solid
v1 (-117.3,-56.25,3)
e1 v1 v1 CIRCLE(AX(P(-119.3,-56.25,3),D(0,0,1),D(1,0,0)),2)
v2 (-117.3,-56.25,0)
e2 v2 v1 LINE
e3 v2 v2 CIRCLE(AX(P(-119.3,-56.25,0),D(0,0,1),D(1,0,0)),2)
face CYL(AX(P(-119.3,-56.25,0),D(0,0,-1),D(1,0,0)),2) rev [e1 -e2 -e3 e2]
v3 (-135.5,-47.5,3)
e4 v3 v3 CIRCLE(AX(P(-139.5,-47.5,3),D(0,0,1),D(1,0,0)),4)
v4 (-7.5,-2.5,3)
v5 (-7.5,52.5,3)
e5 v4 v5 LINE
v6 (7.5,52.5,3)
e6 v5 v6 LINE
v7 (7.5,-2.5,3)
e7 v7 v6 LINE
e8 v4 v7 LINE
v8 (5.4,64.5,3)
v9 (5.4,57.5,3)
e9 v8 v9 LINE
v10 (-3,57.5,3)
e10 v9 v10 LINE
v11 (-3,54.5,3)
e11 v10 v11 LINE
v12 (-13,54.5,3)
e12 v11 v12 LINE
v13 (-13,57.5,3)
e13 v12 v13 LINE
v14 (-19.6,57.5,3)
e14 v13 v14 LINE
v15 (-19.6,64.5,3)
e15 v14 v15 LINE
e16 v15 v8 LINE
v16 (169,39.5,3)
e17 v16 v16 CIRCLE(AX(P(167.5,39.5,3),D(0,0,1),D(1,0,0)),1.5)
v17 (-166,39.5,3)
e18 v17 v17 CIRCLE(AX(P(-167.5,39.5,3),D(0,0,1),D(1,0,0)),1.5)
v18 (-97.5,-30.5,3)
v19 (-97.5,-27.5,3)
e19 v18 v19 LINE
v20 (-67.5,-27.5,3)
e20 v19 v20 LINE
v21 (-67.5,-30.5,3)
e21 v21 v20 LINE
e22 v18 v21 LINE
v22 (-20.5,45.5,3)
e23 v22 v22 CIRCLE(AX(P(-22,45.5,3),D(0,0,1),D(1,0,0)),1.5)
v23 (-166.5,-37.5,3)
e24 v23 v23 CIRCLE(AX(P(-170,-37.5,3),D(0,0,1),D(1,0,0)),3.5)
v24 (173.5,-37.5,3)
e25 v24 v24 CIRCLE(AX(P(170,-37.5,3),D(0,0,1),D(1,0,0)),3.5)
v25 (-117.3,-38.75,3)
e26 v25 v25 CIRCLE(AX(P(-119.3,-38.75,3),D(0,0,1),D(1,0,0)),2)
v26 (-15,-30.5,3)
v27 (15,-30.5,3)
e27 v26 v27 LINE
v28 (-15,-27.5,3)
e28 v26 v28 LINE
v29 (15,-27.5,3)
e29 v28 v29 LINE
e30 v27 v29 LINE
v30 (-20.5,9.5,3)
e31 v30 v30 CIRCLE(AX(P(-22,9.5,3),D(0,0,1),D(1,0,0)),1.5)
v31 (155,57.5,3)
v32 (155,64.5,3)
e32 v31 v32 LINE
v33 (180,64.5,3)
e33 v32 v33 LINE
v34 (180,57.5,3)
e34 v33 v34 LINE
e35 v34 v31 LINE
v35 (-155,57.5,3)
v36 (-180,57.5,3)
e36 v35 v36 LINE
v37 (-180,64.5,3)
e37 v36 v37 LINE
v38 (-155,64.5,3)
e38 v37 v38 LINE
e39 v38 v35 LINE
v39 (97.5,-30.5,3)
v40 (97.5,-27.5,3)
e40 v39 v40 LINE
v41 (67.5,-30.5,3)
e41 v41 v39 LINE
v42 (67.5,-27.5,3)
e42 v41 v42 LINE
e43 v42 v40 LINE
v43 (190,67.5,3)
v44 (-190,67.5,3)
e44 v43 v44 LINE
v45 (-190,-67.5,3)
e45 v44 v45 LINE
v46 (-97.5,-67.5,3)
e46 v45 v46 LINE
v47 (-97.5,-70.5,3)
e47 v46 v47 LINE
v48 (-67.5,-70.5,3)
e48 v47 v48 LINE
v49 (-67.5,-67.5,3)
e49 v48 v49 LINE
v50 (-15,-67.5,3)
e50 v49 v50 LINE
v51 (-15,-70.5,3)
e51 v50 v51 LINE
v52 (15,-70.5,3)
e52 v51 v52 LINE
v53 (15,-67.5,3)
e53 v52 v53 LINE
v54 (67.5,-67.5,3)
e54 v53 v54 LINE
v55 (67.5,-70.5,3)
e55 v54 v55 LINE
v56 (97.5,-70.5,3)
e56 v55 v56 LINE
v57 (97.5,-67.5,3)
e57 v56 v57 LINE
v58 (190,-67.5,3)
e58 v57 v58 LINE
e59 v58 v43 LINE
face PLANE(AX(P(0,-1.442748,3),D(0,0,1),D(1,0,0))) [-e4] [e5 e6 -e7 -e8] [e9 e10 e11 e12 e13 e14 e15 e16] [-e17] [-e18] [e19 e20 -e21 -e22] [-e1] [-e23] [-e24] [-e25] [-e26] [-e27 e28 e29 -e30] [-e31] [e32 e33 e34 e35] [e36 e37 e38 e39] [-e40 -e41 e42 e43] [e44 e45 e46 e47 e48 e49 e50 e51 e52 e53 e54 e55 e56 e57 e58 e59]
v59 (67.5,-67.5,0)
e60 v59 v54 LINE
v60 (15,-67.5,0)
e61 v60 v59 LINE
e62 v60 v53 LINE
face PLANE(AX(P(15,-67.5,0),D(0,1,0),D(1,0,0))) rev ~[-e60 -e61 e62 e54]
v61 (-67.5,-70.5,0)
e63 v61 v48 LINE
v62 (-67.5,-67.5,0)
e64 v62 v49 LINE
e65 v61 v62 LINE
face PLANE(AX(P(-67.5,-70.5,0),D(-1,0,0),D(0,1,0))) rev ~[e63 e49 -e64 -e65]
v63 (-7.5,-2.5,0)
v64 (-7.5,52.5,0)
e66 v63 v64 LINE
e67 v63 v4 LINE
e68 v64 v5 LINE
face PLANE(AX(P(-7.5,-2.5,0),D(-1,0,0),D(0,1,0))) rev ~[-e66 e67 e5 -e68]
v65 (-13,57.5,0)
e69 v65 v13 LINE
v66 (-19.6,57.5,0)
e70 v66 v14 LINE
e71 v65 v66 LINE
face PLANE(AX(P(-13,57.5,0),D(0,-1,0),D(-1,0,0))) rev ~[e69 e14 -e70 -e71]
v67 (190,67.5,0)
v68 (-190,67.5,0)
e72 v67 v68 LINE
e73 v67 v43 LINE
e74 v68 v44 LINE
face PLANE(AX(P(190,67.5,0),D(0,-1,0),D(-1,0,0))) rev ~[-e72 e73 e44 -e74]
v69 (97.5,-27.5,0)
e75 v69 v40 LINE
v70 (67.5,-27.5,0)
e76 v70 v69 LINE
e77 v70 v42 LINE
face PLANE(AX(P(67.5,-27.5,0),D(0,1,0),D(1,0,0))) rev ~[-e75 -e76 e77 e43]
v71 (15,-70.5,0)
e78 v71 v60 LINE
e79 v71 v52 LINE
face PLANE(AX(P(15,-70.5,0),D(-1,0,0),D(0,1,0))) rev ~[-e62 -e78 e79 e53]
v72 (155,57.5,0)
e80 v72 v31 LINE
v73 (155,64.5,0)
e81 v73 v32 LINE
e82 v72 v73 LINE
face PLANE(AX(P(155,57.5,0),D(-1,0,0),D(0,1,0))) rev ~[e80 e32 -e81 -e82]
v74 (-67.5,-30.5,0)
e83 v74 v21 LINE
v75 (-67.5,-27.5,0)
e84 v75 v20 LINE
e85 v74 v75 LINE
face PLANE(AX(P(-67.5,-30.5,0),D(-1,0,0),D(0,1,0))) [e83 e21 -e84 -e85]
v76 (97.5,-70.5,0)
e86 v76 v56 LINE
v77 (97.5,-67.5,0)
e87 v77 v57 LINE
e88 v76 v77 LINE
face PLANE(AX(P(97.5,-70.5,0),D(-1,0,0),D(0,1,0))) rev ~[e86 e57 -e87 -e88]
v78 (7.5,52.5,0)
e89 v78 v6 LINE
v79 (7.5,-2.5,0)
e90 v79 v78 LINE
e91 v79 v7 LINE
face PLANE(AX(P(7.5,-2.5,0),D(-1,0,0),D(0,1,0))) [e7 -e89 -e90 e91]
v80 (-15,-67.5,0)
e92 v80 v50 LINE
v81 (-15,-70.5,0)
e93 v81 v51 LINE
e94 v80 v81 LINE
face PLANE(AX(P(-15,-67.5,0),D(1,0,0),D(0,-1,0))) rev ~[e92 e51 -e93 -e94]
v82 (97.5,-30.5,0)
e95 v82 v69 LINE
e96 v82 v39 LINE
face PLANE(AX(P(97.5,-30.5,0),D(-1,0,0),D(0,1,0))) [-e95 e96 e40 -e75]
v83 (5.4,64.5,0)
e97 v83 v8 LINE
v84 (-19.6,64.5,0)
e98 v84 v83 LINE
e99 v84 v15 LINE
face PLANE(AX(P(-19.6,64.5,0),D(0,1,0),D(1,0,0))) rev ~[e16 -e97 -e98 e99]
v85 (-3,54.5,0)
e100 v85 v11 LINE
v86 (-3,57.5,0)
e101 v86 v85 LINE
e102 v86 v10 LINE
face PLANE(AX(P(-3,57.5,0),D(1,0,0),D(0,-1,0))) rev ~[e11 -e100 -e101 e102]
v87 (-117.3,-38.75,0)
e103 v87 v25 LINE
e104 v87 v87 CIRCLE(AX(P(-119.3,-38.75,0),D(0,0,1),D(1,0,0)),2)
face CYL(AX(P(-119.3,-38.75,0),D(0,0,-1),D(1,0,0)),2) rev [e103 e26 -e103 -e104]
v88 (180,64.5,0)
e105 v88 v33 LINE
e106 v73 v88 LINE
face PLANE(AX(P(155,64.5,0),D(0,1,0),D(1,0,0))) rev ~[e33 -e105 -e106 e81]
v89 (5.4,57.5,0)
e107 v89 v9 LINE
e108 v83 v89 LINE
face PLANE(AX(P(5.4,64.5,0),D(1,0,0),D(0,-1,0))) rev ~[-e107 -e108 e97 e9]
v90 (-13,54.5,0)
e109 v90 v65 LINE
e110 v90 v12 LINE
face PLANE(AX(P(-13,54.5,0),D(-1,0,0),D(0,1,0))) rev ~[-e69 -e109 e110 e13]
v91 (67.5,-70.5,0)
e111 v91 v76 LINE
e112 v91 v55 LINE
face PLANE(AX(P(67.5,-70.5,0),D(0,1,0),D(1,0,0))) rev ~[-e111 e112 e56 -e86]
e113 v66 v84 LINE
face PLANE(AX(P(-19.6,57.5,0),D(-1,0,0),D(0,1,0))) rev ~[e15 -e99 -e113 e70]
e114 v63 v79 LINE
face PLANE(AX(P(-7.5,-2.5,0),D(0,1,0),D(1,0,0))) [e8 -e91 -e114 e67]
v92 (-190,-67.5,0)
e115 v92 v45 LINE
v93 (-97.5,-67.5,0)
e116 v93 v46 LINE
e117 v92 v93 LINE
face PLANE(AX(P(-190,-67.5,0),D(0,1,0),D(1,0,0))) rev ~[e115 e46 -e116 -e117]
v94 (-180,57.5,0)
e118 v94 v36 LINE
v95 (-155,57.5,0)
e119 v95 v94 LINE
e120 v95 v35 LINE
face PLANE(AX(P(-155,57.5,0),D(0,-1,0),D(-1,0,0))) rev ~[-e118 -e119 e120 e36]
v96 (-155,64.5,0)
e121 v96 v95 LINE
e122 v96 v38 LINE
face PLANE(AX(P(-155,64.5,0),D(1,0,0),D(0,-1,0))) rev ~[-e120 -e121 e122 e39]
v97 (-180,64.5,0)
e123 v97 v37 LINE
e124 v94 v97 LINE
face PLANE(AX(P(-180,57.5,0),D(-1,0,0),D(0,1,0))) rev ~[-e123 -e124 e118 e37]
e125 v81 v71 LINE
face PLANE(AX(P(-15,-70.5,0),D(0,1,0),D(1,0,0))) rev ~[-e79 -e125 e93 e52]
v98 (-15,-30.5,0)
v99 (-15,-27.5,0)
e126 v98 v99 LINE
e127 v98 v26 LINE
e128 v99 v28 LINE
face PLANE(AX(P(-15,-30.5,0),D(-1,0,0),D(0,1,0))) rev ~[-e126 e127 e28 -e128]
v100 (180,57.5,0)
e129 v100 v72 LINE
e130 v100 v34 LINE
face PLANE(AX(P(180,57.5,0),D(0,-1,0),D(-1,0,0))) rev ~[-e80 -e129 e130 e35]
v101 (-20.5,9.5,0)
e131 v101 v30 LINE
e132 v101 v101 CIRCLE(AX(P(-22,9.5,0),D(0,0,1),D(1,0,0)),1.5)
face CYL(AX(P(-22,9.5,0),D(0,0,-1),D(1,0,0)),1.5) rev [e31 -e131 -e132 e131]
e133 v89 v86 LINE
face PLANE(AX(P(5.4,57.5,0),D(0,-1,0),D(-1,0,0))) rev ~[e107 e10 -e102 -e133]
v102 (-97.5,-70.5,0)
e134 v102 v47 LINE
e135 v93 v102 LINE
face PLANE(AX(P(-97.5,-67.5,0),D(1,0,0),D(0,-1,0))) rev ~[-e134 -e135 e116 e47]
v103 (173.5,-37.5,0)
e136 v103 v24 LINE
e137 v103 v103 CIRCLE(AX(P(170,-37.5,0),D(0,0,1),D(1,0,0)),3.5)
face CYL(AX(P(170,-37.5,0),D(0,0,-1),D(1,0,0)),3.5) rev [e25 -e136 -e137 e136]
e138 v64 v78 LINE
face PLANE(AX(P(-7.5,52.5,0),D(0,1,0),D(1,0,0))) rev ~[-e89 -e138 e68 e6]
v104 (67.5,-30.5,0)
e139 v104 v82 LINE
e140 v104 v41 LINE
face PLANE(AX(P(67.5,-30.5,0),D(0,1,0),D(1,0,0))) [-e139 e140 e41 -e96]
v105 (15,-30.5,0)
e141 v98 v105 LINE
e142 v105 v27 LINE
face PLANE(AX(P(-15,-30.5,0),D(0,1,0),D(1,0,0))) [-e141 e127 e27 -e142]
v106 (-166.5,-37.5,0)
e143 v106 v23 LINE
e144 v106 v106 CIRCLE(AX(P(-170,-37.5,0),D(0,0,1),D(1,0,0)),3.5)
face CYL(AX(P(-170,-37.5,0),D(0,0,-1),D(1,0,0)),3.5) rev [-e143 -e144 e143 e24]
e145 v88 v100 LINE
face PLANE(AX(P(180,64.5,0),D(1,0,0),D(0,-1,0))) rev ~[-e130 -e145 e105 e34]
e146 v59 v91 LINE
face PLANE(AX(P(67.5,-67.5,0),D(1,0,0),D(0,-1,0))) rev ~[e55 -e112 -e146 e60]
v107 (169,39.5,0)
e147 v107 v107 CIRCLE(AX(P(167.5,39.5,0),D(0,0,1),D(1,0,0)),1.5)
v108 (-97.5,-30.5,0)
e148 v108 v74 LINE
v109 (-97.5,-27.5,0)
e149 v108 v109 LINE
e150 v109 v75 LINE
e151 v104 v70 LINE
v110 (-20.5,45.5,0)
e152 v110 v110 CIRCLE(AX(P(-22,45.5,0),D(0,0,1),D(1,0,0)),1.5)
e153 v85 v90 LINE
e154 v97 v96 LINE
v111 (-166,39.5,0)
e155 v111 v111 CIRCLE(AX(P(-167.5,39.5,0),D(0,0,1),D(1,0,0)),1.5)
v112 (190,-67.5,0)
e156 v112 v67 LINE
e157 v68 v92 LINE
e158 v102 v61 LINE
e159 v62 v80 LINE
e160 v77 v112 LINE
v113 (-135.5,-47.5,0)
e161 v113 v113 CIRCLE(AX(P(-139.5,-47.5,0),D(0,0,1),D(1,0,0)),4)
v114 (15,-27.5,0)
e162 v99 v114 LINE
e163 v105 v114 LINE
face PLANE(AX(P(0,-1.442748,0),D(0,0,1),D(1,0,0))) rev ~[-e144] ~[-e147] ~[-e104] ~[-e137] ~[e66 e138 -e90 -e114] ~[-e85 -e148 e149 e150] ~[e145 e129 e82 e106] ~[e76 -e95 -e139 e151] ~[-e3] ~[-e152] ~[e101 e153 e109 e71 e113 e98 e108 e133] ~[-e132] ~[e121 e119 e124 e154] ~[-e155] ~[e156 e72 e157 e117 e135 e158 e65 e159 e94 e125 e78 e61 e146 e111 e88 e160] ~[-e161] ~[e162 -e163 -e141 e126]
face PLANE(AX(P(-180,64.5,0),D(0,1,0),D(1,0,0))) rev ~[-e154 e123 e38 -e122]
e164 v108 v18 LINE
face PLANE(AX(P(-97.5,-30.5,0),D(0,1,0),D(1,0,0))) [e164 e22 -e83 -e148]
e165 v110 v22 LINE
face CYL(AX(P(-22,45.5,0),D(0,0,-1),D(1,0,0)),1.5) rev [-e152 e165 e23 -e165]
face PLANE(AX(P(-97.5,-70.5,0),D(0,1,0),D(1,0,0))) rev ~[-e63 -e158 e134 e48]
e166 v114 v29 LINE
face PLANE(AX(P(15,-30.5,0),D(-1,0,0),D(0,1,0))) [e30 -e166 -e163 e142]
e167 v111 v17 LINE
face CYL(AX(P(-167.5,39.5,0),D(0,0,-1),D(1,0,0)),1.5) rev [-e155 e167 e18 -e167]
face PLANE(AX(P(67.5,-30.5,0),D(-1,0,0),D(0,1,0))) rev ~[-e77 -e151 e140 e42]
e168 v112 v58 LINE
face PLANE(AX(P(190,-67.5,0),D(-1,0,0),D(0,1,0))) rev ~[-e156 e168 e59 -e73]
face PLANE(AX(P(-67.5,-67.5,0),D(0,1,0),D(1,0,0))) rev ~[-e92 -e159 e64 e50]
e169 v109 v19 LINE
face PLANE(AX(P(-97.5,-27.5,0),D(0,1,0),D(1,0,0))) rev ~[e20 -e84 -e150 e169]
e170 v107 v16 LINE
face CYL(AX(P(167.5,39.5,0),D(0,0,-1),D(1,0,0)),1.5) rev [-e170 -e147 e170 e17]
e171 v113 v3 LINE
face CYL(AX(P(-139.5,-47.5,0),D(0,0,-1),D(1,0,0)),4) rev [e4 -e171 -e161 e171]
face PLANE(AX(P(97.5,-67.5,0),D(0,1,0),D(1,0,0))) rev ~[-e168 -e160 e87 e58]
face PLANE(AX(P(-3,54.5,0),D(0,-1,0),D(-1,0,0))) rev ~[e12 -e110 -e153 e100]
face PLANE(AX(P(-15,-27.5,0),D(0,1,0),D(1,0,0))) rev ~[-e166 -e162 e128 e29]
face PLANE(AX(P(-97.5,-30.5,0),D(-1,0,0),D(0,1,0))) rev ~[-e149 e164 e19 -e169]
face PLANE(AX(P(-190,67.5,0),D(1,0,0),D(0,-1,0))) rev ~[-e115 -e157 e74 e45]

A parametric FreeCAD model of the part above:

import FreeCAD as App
import Part
import Sketcher


def add_polygon(sketch, points):
    """Adds a closed chain of lines whose ends are joined by coincident constraints."""
    first, n = sketch.GeometryCount, len(points)
    for a, b in zip(points, points[1:] + points[:1]):
        sketch.addGeometry(Part.LineSegment(App.Vector(*a, 0), App.Vector(*b, 0)), False)
    for i in range(n):
        sketch.addConstraint(Sketcher.Constraint("Coincident", first + i, 2, first + (i + 1) % n, 1))

doc = App.newDocument("Part")
body = doc.addObject("PartDesign::Body", "Body")

sketch1 = body.newObject("Sketcher::SketchObject", "Sketch")
sketch1.AttachmentSupport = (doc.getObject("XY_Plane"), [""])
sketch1.MapMode = "FlatFace"
add_polygon(sketch1, [(-190, 67.5), (-190, -67.5), (-97.5, -67.5), (-97.5, -70.5), (-67.5, -70.5), (-67.5, -67.5), (-15, -67.5), (-15, -70.5), (15, -70.5), (15, -67.5), (67.5, -67.5), (67.5, -70.5), (97.5, -70.5), (97.5, -67.5), (190, -67.5), (190, 67.5)])
sketch1.addGeometry(Part.Circle(App.Vector(-139.5, -47.5, 0), App.Vector(0, 0, 1), 4), False)
sketch1.addGeometry(Part.Circle(App.Vector(-119.3, -56.2, 0), App.Vector(0, 0, 1), 2), False)
sketch1.addGeometry(Part.Circle(App.Vector(-170, -37.5, 0), App.Vector(0, 0, 1), 3.5), False)
sketch1.addGeometry(Part.Circle(App.Vector(-119.3, -38.8, 0), App.Vector(0, 0, 1), 2), False)
add_polygon(sketch1, [(-67.5, -30.5), (-97.5, -30.5), (-97.5, -27.5), (-67.5, -27.5)])
add_polygon(sketch1, [(15, -30.5), (-15, -30.5), (-15, -27.5), (15, -27.5)])
add_polygon(sketch1, [(97.5, -30.5), (67.5, -30.5), (67.5, -27.5), (97.5, -27.5)])
sketch1.addGeometry(Part.Circle(App.Vector(170, -37.5, 0), App.Vector(0, 0, 1), 3.5), False)
sketch1.addGeometry(Part.Circle(App.Vector(-22, 9.5, 0), App.Vector(0, 0, 1), 1.5), False)
sketch1.addGeometry(Part.Circle(App.Vector(-167.5, 39.5, 0), App.Vector(0, 0, 1), 1.5), False)
add_polygon(sketch1, [(-155, 57.5), (-180, 57.5), (-180, 64.5), (-155, 64.5)])
sketch1.addGeometry(Part.Circle(App.Vector(-22, 45.5, 0), App.Vector(0, 0, 1), 1.5), False)
add_polygon(sketch1, [(-13, 57.5), (-19.6, 57.5), (-19.6, 64.5), (5.4, 64.5), (5.4, 57.5), (-3, 57.5), (-3, 54.5), (-13, 54.5)])
add_polygon(sketch1, [(7.5, -2.5), (-7.5, -2.5), (-7.5, 52.5), (7.5, 52.5)])
sketch1.addGeometry(Part.Circle(App.Vector(167.5, 39.5, 0), App.Vector(0, 0, 1), 1.5), False)
add_polygon(sketch1, [(180, 57.5), (155, 57.5), (155, 64.5), (180, 64.5)])
sketch1.addConstraint(Sketcher.Constraint("Vertical", 0))
sketch1.addConstraint(Sketcher.Constraint("Horizontal", 1))
sketch1.addConstraint(Sketcher.Constraint("Vertical", 2))
sketch1.addConstraint(Sketcher.Constraint("Horizontal", 3))
sketch1.addConstraint(Sketcher.Constraint("Vertical", 4))
sketch1.addConstraint(Sketcher.Constraint("Horizontal", 5))
sketch1.addConstraint(Sketcher.Constraint("Vertical", 6))
sketch1.addConstraint(Sketcher.Constraint("Horizontal", 7))
sketch1.addConstraint(Sketcher.Constraint("Vertical", 8))
sketch1.addConstraint(Sketcher.Constraint("Horizontal", 9))
sketch1.addConstraint(Sketcher.Constraint("Vertical", 10))
sketch1.addConstraint(Sketcher.Constraint("Horizontal", 11))
sketch1.addConstraint(Sketcher.Constraint("Vertical", 12))
sketch1.addConstraint(Sketcher.Constraint("Horizontal", 13))
sketch1.addConstraint(Sketcher.Constraint("Vertical", 14))
sketch1.addConstraint(Sketcher.Constraint("Horizontal", 15))
sketch1.addConstraint(Sketcher.Constraint("Horizontal", 20))
sketch1.addConstraint(Sketcher.Constraint("Vertical", 21))
sketch1.addConstraint(Sketcher.Constraint("Horizontal", 22))
sketch1.addConstraint(Sketcher.Constraint("Vertical", 23))
sketch1.addConstraint(Sketcher.Constraint("Horizontal", 24))
sketch1.addConstraint(Sketcher.Constraint("Vertical", 25))
sketch1.addConstraint(Sketcher.Constraint("Horizontal", 26))
sketch1.addConstraint(Sketcher.Constraint("Vertical", 27))
sketch1.addConstraint(Sketcher.Constraint("Horizontal", 28))
sketch1.addConstraint(Sketcher.Constraint("Vertical", 29))
sketch1.addConstraint(Sketcher.Constraint("Horizontal", 30))
sketch1.addConstraint(Sketcher.Constraint("Vertical", 31))
sketch1.addConstraint(Sketcher.Constraint("Horizontal", 35))
sketch1.addConstraint(Sketcher.Constraint("Vertical", 36))
sketch1.addConstraint(Sketcher.Constraint("Horizontal", 37))
sketch1.addConstraint(Sketcher.Constraint("Vertical", 38))
sketch1.addConstraint(Sketcher.Constraint("Horizontal", 40))
sketch1.addConstraint(Sketcher.Constraint("Vertical", 41))
sketch1.addConstraint(Sketcher.Constraint("Horizontal", 42))
sketch1.addConstraint(Sketcher.Constraint("Vertical", 43))
sketch1.addConstraint(Sketcher.Constraint("Horizontal", 44))
sketch1.addConstraint(Sketcher.Constraint("Vertical", 45))
sketch1.addConstraint(Sketcher.Constraint("Horizontal", 46))
sketch1.addConstraint(Sketcher.Constraint("Vertical", 47))
sketch1.addConstraint(Sketcher.Constraint("Horizontal", 48))
sketch1.addConstraint(Sketcher.Constraint("Vertical", 49))
sketch1.addConstraint(Sketcher.Constraint("Horizontal", 50))
sketch1.addConstraint(Sketcher.Constraint("Vertical", 51))
sketch1.addConstraint(Sketcher.Constraint("Horizontal", 53))
sketch1.addConstraint(Sketcher.Constraint("Vertical", 54))
sketch1.addConstraint(Sketcher.Constraint("Horizontal", 55))
sketch1.addConstraint(Sketcher.Constraint("Vertical", 56))
sketch1.addConstraint(Sketcher.Constraint("Equal", 17, 19))
sketch1.addConstraint(Sketcher.Constraint("Equal", 18, 32))
sketch1.addConstraint(Sketcher.Constraint("Equal", 33, 34))
sketch1.addConstraint(Sketcher.Constraint("Equal", 34, 39))
sketch1.addConstraint(Sketcher.Constraint("Equal", 39, 52))
sketch1.addConstraint(Sketcher.Constraint("Symmetric", 0, 2, 14, 2, -1, 1))
sketch1.addConstraint(Sketcher.Constraint("Symmetric", 18, 3, 32, 3, -2))
sketch1.addConstraint(Sketcher.Constraint("Symmetric", 34, 3, 52, 3, -2))
sketch1.addConstraint(Sketcher.Constraint("Symmetric", 5, 2, 8, 2, -2))
sketch1.addConstraint(Sketcher.Constraint("Symmetric", 3, 2, 10, 2, -2))
sketch1.addConstraint(Sketcher.Constraint("Symmetric", 1, 2, 12, 2, -2))
sketch1.addConstraint(Sketcher.Constraint("Symmetric", 23, 2, 28, 2, -2))
sketch1.addConstraint(Sketcher.Constraint("Symmetric", 21, 2, 30, 2, -2))
sketch1.addConstraint(Sketcher.Constraint("Symmetric", 38, 2, 53, 2, -2))
sketch1.addConstraint(Sketcher.Constraint("Symmetric", 36, 2, 55, 2, -2))
sketch1.addConstraint(Sketcher.Constraint("Horizontal", 1, 2, 4, 2))
sketch1.addConstraint(Sketcher.Constraint("Horizontal", 3, 2, 6, 2))
sketch1.addConstraint(Sketcher.Constraint("Horizontal", 23, 2, 24, 2))
sketch1.addConstraint(Sketcher.Constraint("Horizontal", 22, 2, 25, 2))
sketch1.addConstraint(Sketcher.Constraint("Horizontal", 38, 2, 40, 2))
sketch1.addConstraint(Sketcher.Constraint("Horizontal", 37, 2, 41, 2))
sketch1.addConstraint(Sketcher.Constraint("Horizontal", 40, 2, 43, 2))
sketch1.addConstraint(Sketcher.Constraint("Vertical", 17, 3, 19, 3))
sketch1.addConstraint(Sketcher.Constraint("Vertical", 33, 3, 39, 3))
sketch1.addConstraint(Sketcher.Constraint("Vertical", 2, 2, 20, 2))
sketch1.addConstraint(Sketcher.Constraint("Vertical", 4, 2, 22, 2))
sketch1.addConstraint(Sketcher.Constraint("Vertical", 6, 2, 24, 2))
sketch1.addConstraint(Sketcher.Constraint("Vertical", 8, 2, 26, 2))
sketch1.addConstraint(Sketcher.Constraint("Equal", 3, 7))
sketch1.addConstraint(Sketcher.Constraint("Equal", 37, 42))
sketch1.addConstraint(Sketcher.Constraint("Equal", 12, 21))
sketch1.addConstraint(Sketcher.Constraint("Equal", 31, 45))
sketch1.addConstraint(Sketcher.Constraint("Diameter", 16, 8.0))
sketch1.addConstraint(Sketcher.Constraint("Diameter", 17, 4.0))
sketch1.addConstraint(Sketcher.Constraint("Diameter", 18, 7.0))
sketch1.addConstraint(Sketcher.Constraint("Diameter", 33, 3.0))
sketch1.addConstraint(Sketcher.Constraint("DistanceX", 3, 1, 3, 2, 30.0))
sketch1.addConstraint(Sketcher.Constraint("DistanceX", 15, 2, 15, 1, 380.0))
sketch1.addConstraint(Sketcher.Constraint("DistanceX", 35, 2, 35, 1, 25.0))
sketch1.addConstraint(Sketcher.Constraint("DistanceX", 46, 2, 46, 1, 10.0))
sketch1.addConstraint(Sketcher.Constraint("DistanceX", 48, 2, 48, 1, 15.0))
sketch1.addConstraint(Sketcher.Constraint("DistanceY", 0, 2, 0, 1, 135.0))
sketch1.addConstraint(Sketcher.Constraint("DistanceY", 2, 2, 2, 1, 3.0))
sketch1.addConstraint(Sketcher.Constraint("DistanceY", 36, 1, 36, 2, 7.0))
sketch1.addConstraint(Sketcher.Constraint("DistanceY", 49, 1, 49, 2, 55.0))
sketch1.addConstraint(Sketcher.Constraint("DistanceX", 1, 1, 1, 2, 92.5))
sketch1.addConstraint(Sketcher.Constraint("DistanceX", 40, 2, 40, 1, 6.6))
sketch1.addConstraint(Sketcher.Constraint("DistanceX", 18, 3, -1, 1, 170.0))
sketch1.addConstraint(Sketcher.Constraint("DistanceX", 33, 3, -1, 1, 22.0))
sketch1.addConstraint(Sketcher.Constraint("DistanceX", 35, 2, -1, 1, 180.0))
sketch1.addConstraint(Sketcher.Constraint("DistanceX", 44, 2, -1, 1, 3.0))
sketch1.addConstraint(Sketcher.Constraint("DistanceY", 16, 3, 18, 3, 10.0))
sketch1.addConstraint(Sketcher.Constraint("DistanceY", 16, 3, 33, 3, 57.0))
sketch1.addConstraint(Sketcher.Constraint("DistanceY", 18, 3, 34, 3, 77.0))
sketch1.addConstraint(Sketcher.Constraint("DistanceX", 34, 3, 16, 3, 28.0))
sketch1.addConstraint(Sketcher.Constraint("DistanceY", 33, 3, 39, 3, 36.0))
sketch1.addConstraint(Sketcher.Constraint("DistanceY", 0, 2, 18, 3, 30.0))
sketch1.addConstraint(Sketcher.Constraint("DistanceX", 16, 3, 1, 2, 42.0))
sketch1.addConstraint(Sketcher.Constraint("DistanceY", 1, 2, 20, 2, 37.0))
sketch1.addConstraint(Sketcher.Constraint("DistanceY", 35, 2, 15, 2, 10.0))
sketch1.addConstraint(Sketcher.Constraint("DistanceY", 48, 2, 33, 3, 12.0))
sketch1.addConstraint(Sketcher.Constraint("DistanceX", 17, 3, -1, 1, 119.3))
sketch1.addConstraint(Sketcher.Constraint("DistanceX", 48, 2, -1, 1, 7.5))
sketch1.addConstraint(Sketcher.Constraint("DistanceY", 17, 3, 19, 3, 17.5))
sketch1.addConstraint(Sketcher.Constraint("DistanceY", 17, 3, -1, 1, 56.25))
pad1 = body.newObject("PartDesign::Pad", "Pad")
pad1.Profile = sketch1
pad1.Length = 3

doc.recompute()
